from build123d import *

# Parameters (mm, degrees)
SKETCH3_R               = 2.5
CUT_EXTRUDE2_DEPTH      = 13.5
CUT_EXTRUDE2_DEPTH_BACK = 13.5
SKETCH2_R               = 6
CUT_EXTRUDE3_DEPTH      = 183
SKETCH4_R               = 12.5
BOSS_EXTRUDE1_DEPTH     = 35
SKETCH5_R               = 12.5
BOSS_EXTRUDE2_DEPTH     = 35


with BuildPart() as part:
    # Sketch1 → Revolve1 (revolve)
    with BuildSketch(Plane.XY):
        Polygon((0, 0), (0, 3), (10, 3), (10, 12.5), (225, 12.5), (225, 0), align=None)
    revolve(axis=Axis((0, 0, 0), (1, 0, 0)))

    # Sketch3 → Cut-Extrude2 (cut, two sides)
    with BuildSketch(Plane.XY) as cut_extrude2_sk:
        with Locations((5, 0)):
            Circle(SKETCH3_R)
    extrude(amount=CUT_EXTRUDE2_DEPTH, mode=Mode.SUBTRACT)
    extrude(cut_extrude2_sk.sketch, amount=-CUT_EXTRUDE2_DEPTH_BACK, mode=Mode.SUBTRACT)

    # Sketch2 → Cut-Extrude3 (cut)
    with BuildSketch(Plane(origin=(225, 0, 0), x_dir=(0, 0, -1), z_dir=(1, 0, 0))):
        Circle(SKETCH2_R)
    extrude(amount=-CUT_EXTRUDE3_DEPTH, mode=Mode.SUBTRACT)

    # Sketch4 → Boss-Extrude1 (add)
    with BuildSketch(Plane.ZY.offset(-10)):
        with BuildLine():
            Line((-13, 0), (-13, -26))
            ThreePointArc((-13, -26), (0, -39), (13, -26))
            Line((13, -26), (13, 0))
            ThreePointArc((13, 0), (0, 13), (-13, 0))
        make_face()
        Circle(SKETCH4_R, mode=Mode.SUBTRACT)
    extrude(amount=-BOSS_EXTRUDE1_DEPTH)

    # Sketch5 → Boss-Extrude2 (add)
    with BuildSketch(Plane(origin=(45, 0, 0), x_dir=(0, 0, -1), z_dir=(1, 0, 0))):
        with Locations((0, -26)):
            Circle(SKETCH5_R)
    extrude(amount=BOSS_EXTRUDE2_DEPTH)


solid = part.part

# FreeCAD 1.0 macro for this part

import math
import FreeCAD as App
import Part
import Sketcher
from FreeCAD import Vector
Q = App.Units.Quantity

doc = App.newDocument("Part")
body = doc.addObject("PartDesign::Body", "Body")

# Sketch on XY plane
sketch1 = body.newObject("Sketcher::SketchObject", "Sketch")
sketch1.AttachmentSupport = (doc.getObject("XY_Plane"), [""])
sketch1.MapMode = "FlatFace"
sketch1.addGeometry(Part.LineSegment(Vector(0, 3, 0), Vector(0, 0, 0)), False)
sketch1.addGeometry(Part.LineSegment(Vector(0, 0, 0), Vector(225, 0, 0)), False)
sketch1.addGeometry(Part.LineSegment(Vector(225, 0, 0), Vector(225, 12.5, 0)), False)
sketch1.addGeometry(Part.LineSegment(Vector(225, 12.5, 0), Vector(10, 12.5, 0)), False)
sketch1.addGeometry(Part.LineSegment(Vector(10, 12.5, 0), Vector(10, 3, 0)), False)
sketch1.addGeometry(Part.LineSegment(Vector(10, 3, 0), Vector(0, 3, 0)), False)
sketch1.addConstraint(Sketcher.Constraint("Coincident", 0, 2, 1, 1))
sketch1.addConstraint(Sketcher.Constraint("Coincident", 1, 2, 2, 1))
sketch1.addConstraint(Sketcher.Constraint("Coincident", 2, 2, 3, 1))
sketch1.addConstraint(Sketcher.Constraint("Coincident", 3, 2, 4, 1))
sketch1.addConstraint(Sketcher.Constraint("Coincident", 4, 2, 5, 1))
sketch1.addConstraint(Sketcher.Constraint("Coincident", 5, 2, 0, 1))
sketch1.addConstraint(Sketcher.Constraint("Vertical", 0))
sketch1.addConstraint(Sketcher.Constraint("Horizontal", 1))
sketch1.addConstraint(Sketcher.Constraint("Vertical", 2))
sketch1.addConstraint(Sketcher.Constraint("Horizontal", 3))
sketch1.addConstraint(Sketcher.Constraint("Vertical", 4))
sketch1.addConstraint(Sketcher.Constraint("Horizontal", 5))
sketch1.addConstraint(Sketcher.Constraint("Coincident", 0, 2, -1, 1))
sketch1.addConstraint(Sketcher.Constraint("DistanceX", 1, 1, 1, 2, Q("225 mm")))
sketch1.addConstraint(Sketcher.Constraint("DistanceX", 3, 2, 3, 1, Q("215 mm")))
sketch1.addConstraint(Sketcher.Constraint("DistanceY", 0, 2, 0, 1, Q("3 mm")))
sketch1.addConstraint(Sketcher.Constraint("DistanceY", 2, 1, 2, 2, Q("12.5 mm")))
revolution = body.newObject("PartDesign::Revolution", "Revolution")
revolution.Profile = sketch1
revolution.ReferenceAxis = (sketch1, ["H_Axis"])
revolution.Angle = 360

# Sketch on XY plane
sketch2 = body.newObject("Sketcher::SketchObject", "Sketch001")
sketch2.AttachmentSupport = (doc.getObject("XY_Plane"), [""])
sketch2.MapMode = "FlatFace"
sketch2.addGeometry(Part.Circle(Vector(5, 0, 0), Vector(0, 0, 1), 2.5), False)
sketch2.addConstraint(Sketcher.Constraint("PointOnObject", 0, 3, -1))
sketch2.addConstraint(Sketcher.Constraint("Diameter", 0, Q("5 mm")))
sketch2.addConstraint(Sketcher.Constraint("DistanceX", -1, 1, 0, 3, Q("5 mm")))
pocket1 = body.newObject("PartDesign::Pocket", "Pocket")
pocket1.Profile = sketch2
pocket1.Type = "ThroughAll"
pocket1.Midplane = True

# Sketch on YZ plane
sketch3 = body.newObject("Sketcher::SketchObject", "Sketch002")
sketch3.AttachmentSupport = (doc.getObject("YZ_Plane"), [""])
sketch3.MapMode = "FlatFace"
sketch3.AttachmentOffset = App.Placement(Vector(0, 0, 225), App.Rotation())
sketch3.addGeometry(Part.Circle(Vector(0, 0, 0), Vector(0, 0, 1), 6), False)
sketch3.addConstraint(Sketcher.Constraint("Coincident", 0, 3, -1, 1))
sketch3.addConstraint(Sketcher.Constraint("Diameter", 0, Q("12 mm")))
pocket2 = body.newObject("PartDesign::Pocket", "Pocket001")
pocket2.Profile = sketch3
pocket2.Length = 183

# Sketch on YZ plane
sketch4 = body.newObject("Sketcher::SketchObject", "Sketch003")
sketch4.AttachmentSupport = (doc.getObject("YZ_Plane"), [""])
sketch4.MapMode = "FlatFace"
sketch4.AttachmentOffset = App.Placement(Vector(0, 0, 10), App.Rotation())
sketch4.addGeometry(Part.LineSegment(Vector(0, -13, 0), Vector(-26, -13, 0)), False)
sketch4.addGeometry(Part.ArcOfCircle(Part.Circle(Vector(-26, 0, 0), Vector(0, 0, 1), 13), math.radians(90), math.radians(270)), False)
sketch4.addGeometry(Part.LineSegment(Vector(-26, 13, 0), Vector(0, 13, 0)), False)
sketch4.addGeometry(Part.ArcOfCircle(Part.Circle(Vector(0, 0, 0), Vector(0, 0, 1), 13), math.radians(-90), math.radians(90)), False)
sketch4.addGeometry(Part.Circle(Vector(0, 0, 0), Vector(0, 0, 1), 12), False)
sketch4.addConstraint(Sketcher.Constraint("Tangent", 0, 2, 1, 2))
sketch4.addConstraint(Sketcher.Constraint("Tangent", 1, 1, 2, 1))
sketch4.addConstraint(Sketcher.Constraint("Tangent", 2, 2, 3, 2))
sketch4.addConstraint(Sketcher.Constraint("Tangent", 3, 1, 0, 1))
sketch4.addConstraint(Sketcher.Constraint("Horizontal", 0))
sketch4.addConstraint(Sketcher.Constraint("Horizontal", 2))
sketch4.addConstraint(Sketcher.Constraint("Coincident", 3, 3, -1, 1))
sketch4.addConstraint(Sketcher.Constraint("Coincident", 4, 3, -1, 1))
sketch4.addConstraint(Sketcher.Constraint("Diameter", 4, Q("25 mm")))
sketch4.addConstraint(Sketcher.Constraint("Radius", 1, Q("13 mm")))
sketch4.addConstraint(Sketcher.Constraint("DistanceX", 0, 2, 0, 1, Q("26 mm")))
pad1 = body.newObject("PartDesign::Pad", "Pad")
pad1.Profile = sketch4
pad1.Length = 35

# Sketch on YZ plane
sketch5 = body.newObject("Sketcher::SketchObject", "Sketch004")
sketch5.AttachmentSupport = (doc.getObject("YZ_Plane"), [""])
sketch5.MapMode = "FlatFace"
sketch5.AttachmentOffset = App.Placement(Vector(0, 0, 45), App.Rotation())
sketch5.addGeometry(Part.Circle(Vector(-26, 0, 0), Vector(0, 0, 1), 12), False)
sketch5.addConstraint(Sketcher.Constraint("PointOnObject", 0, 3, -1))
sketch5.addConstraint(Sketcher.Constraint("Diameter", 0, Q("25 mm")))
sketch5.addConstraint(Sketcher.Constraint("DistanceX", 0, 3, -1, 1, Q("26 mm")))
pad2 = body.newObject("PartDesign::Pad", "Pad001")
pad2.Profile = sketch5
pad2.Length = 35

doc.recompute()
